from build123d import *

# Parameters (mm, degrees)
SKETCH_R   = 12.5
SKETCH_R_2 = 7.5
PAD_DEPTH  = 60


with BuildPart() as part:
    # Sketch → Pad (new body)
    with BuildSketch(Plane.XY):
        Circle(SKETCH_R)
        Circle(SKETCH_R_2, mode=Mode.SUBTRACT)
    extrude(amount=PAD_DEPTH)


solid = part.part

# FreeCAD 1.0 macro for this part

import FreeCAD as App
import Part
import Sketcher
Q = App.Units.Quantity

doc = App.newDocument("Part")
body = doc.addObject("PartDesign::Body", "Body")

# Sketch on XY plane
sketch1 = body.newObject("Sketcher::SketchObject", "Sketch")
sketch1.AttachmentSupport = (doc.getObject("XY_Plane"), [""])
sketch1.MapMode = "FlatFace"
sketch1.addGeometry([
    Part.Circle(App.Vector(0, 0, 0), App.Vector(0, 0, 1), 12),
    Part.Circle(App.Vector(0, 0, 0), App.Vector(0, 0, 1), 8),
], False)
sketch1.addConstraint([
    Sketcher.Constraint("Coincident", 0, 3, -1, 1),
    Sketcher.Constraint("Coincident", 1, 3, -1, 1),
    Sketcher.Constraint("Diameter", 0, Q("25 mm")),
    Sketcher.Constraint("Diameter", 1, Q("15 mm")),
])
pad1 = body.newObject("PartDesign::Pad", "Pad")
pad1.Profile = sketch1
pad1.Length = 60

doc.recompute()
